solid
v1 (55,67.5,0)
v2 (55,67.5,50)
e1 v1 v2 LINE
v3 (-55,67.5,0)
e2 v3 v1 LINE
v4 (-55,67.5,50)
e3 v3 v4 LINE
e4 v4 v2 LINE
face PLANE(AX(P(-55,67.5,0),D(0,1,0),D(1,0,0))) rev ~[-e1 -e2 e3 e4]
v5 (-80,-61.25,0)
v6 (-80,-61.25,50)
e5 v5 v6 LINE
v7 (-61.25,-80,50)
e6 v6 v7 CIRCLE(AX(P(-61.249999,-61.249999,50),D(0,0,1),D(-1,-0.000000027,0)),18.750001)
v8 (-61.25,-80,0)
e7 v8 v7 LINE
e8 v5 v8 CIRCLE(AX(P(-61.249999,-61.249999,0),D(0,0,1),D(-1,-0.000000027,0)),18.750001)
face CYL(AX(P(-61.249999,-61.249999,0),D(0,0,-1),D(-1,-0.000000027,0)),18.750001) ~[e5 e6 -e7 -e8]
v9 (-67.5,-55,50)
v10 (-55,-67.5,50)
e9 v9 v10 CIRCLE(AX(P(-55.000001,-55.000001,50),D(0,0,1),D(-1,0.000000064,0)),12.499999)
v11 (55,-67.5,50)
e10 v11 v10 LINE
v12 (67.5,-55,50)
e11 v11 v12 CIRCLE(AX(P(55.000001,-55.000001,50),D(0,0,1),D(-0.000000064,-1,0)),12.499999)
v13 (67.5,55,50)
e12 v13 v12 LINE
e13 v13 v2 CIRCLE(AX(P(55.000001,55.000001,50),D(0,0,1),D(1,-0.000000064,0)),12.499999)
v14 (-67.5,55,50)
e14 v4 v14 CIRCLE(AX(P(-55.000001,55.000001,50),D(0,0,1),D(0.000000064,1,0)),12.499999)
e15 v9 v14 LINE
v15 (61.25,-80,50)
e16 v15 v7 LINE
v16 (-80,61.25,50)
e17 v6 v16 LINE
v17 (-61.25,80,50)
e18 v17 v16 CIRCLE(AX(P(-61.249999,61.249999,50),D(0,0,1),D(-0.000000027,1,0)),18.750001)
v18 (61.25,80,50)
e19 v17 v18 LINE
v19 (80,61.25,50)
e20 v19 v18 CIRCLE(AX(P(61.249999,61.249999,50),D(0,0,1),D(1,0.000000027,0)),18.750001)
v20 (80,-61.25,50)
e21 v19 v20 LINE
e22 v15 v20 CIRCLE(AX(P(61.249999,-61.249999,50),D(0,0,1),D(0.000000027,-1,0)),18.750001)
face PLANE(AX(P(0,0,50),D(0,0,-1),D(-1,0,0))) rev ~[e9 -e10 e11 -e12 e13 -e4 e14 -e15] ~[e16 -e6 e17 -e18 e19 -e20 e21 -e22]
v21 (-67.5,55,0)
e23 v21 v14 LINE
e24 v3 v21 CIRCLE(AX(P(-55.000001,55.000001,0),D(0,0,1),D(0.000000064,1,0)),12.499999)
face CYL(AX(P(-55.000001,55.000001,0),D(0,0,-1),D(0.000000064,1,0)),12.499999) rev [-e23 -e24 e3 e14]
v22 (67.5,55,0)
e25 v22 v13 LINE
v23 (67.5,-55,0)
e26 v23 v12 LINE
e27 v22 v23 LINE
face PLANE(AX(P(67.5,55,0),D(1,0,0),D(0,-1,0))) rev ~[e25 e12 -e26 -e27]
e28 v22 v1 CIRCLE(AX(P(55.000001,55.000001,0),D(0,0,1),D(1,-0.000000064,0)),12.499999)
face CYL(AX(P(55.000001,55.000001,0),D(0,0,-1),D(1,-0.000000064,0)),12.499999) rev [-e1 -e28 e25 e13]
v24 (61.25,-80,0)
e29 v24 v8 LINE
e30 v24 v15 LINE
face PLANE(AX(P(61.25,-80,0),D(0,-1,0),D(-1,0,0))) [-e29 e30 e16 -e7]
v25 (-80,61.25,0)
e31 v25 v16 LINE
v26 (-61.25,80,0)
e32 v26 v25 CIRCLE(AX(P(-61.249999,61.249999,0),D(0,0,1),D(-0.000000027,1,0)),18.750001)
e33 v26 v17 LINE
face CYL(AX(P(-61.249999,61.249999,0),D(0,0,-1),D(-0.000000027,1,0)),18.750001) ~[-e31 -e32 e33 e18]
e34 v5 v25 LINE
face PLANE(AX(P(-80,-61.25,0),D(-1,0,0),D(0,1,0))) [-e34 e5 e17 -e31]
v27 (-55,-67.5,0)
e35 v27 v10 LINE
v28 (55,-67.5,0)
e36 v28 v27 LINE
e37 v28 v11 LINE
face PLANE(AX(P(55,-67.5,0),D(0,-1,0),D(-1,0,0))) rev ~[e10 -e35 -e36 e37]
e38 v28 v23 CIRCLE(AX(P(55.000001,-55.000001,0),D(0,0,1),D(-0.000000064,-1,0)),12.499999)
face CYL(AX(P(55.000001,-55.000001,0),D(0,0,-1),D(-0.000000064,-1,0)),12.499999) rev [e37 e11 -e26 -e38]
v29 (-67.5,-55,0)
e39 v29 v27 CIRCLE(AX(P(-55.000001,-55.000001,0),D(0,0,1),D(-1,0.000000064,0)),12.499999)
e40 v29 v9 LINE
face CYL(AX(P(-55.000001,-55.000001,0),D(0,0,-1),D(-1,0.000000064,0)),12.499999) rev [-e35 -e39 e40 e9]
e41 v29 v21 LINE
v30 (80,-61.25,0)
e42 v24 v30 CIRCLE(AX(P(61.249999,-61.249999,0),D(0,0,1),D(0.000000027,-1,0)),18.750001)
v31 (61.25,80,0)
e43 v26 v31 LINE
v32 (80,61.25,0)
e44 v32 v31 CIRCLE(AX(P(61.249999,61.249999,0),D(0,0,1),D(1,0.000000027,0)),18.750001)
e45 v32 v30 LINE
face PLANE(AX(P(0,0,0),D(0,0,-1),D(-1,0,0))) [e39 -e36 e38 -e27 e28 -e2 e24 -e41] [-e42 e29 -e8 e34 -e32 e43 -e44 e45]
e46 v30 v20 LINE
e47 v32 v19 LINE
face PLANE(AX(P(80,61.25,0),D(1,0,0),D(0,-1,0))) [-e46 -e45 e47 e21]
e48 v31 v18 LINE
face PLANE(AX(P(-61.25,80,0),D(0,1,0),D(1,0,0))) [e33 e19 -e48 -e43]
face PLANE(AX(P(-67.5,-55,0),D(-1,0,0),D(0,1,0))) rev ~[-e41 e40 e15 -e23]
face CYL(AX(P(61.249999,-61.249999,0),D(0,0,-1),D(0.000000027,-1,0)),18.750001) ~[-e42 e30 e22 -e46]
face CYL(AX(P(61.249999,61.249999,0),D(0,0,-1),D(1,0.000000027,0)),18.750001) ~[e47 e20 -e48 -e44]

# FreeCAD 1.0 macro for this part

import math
import FreeCAD as App
import Part
import Sketcher
from FreeCAD import Vector

doc = App.newDocument("Part")
params = doc.addObject("Spreadsheet::Sheet", "Params")
for row, (alias, value) in enumerate([
    ("sketch1_radius", "12.499999 mm"),
    ("sketch1_width", "110 mm"),
    ("sketch1_radius2", "18.750001 mm"),
    ("sketch1_width2", "122.5 mm"),
    ("pad1_length", "50 mm"),
], start=1):
    params.set(f"A{row}", alias)
    params.set(f"B{row}", "=" + value)
    params.setAlias(f"B{row}", alias)

body = doc.addObject("PartDesign::Body", "Body")

# Sketch on XY plane
sketch1 = body.newObject("Sketcher::SketchObject", "Sketch")
sketch1.AttachmentSupport = (doc.getObject("XY_Plane"), [""])
sketch1.MapMode = "FlatFace"
sketch1.addGeometry([
    Part.LineSegment(Vector(61, 80, 0), Vector(-61, 80, 0)),  # 0
    Part.ArcOfCircle(Part.Circle(Vector(-61, 61, 0), Vector(0, 0, 1), 19), math.radians(90), math.radians(180)),  # 1
    Part.LineSegment(Vector(-80, 61, 0), Vector(-80, -61, 0)),  # 2
    Part.ArcOfCircle(Part.Circle(Vector(-61, -61, 0), Vector(0, 0, 1), 19), math.radians(-180), math.radians(-90)),  # 3
    Part.LineSegment(Vector(-61, -80, 0), Vector(61, -80, 0)),  # 4
    Part.ArcOfCircle(Part.Circle(Vector(61, -61, 0), Vector(0, 0, 1), 19), math.radians(-90), math.radians(0)),  # 5
    Part.LineSegment(Vector(80, -61, 0), Vector(80, 61, 0)),  # 6
    Part.ArcOfCircle(Part.Circle(Vector(61, 61, 0), Vector(0, 0, 1), 19), math.radians(0), math.radians(90)),  # 7
    Part.LineSegment(Vector(-55, 68, 0), Vector(55, 68, 0)),  # 8
    Part.ArcOfCircle(Part.Circle(Vector(55, 55, 0), Vector(0, 0, 1), 12), math.radians(0), math.radians(90)),  # 9
    Part.LineSegment(Vector(68, 55, 0), Vector(68, -55, 0)),  # 10
    Part.ArcOfCircle(Part.Circle(Vector(55, -55, 0), Vector(0, 0, 1), 12), math.radians(-90), math.radians(0)),  # 11
    Part.LineSegment(Vector(55, -68, 0), Vector(-55, -68, 0)),  # 12
    Part.ArcOfCircle(Part.Circle(Vector(-55, -55, 0), Vector(0, 0, 1), 12), math.radians(180), math.radians(270)),  # 13
    Part.LineSegment(Vector(-68, -55, 0), Vector(-68, 55, 0)),  # 14
    Part.ArcOfCircle(Part.Circle(Vector(-55, 55, 0), Vector(0, 0, 1), 12), math.radians(90), math.radians(180)),  # 15
], False)
sketch1.addConstraint([
    Sketcher.Constraint("Tangent", 0, 2, 1, 1),
    Sketcher.Constraint("Tangent", 1, 2, 2, 1),
    Sketcher.Constraint("Tangent", 2, 2, 3, 1),
    Sketcher.Constraint("Tangent", 3, 2, 4, 1),
    Sketcher.Constraint("Tangent", 4, 2, 5, 1),
    Sketcher.Constraint("Tangent", 5, 2, 6, 1),
    Sketcher.Constraint("Tangent", 6, 2, 7, 1),
    Sketcher.Constraint("Tangent", 7, 2, 0, 1),
    Sketcher.Constraint("Tangent", 8, 2, 9, 2),
    Sketcher.Constraint("Tangent", 9, 1, 10, 1),
    Sketcher.Constraint("Tangent", 10, 2, 11, 2),
    Sketcher.Constraint("Tangent", 11, 1, 12, 1),
    Sketcher.Constraint("Tangent", 12, 2, 13, 2),
    Sketcher.Constraint("Tangent", 13, 1, 14, 1),
    Sketcher.Constraint("Tangent", 14, 2, 15, 2),
    Sketcher.Constraint("Tangent", 15, 1, 8, 1),
    Sketcher.Constraint("Horizontal", 0),
    Sketcher.Constraint("Vertical", 2),
    Sketcher.Constraint("Horizontal", 4),
    Sketcher.Constraint("Vertical", 6),
    Sketcher.Constraint("Horizontal", 8),
    Sketcher.Constraint("Vertical", 10),
    Sketcher.Constraint("Horizontal", 12),
    Sketcher.Constraint("Vertical", 14),
    Sketcher.Constraint("Equal", 1, 3),
    Sketcher.Constraint("Equal", 3, 5),
    Sketcher.Constraint("Equal", 5, 7),
    Sketcher.Constraint("Equal", 9, 11),
    Sketcher.Constraint("Equal", 11, 13),
    Sketcher.Constraint("Equal", 13, 15),
    Sketcher.Constraint("Symmetric", 1, 3, 5, 3, -1, 1),
    Sketcher.Constraint("Symmetric", 9, 3, 13, 3, -1, 1),
    Sketcher.Constraint("Equal", 4, 2),
    Sketcher.Constraint("Equal", 12, 10),
    Sketcher.Constraint("Radius", 9, 12.499999),
    Sketcher.Constraint("DistanceX", 8, 1, 8, 2, 110.0),
    Sketcher.Constraint("Radius", 1, 18.750001),
    Sketcher.Constraint("DistanceX", 0, 2, 0, 1, 122.5),
])
sketch1.setExpression("Constraints[34]", "Params.sketch1_radius")
sketch1.setExpression("Constraints[35]", "Params.sketch1_width")
sketch1.setExpression("Constraints[36]", "Params.sketch1_radius2")
sketch1.setExpression("Constraints[37]", "Params.sketch1_width2")
pad1 = body.newObject("PartDesign::Pad", "Pad")
pad1.Profile = sketch1
pad1.setExpression("Length", "Params.pad1_length")

doc.recompute()
